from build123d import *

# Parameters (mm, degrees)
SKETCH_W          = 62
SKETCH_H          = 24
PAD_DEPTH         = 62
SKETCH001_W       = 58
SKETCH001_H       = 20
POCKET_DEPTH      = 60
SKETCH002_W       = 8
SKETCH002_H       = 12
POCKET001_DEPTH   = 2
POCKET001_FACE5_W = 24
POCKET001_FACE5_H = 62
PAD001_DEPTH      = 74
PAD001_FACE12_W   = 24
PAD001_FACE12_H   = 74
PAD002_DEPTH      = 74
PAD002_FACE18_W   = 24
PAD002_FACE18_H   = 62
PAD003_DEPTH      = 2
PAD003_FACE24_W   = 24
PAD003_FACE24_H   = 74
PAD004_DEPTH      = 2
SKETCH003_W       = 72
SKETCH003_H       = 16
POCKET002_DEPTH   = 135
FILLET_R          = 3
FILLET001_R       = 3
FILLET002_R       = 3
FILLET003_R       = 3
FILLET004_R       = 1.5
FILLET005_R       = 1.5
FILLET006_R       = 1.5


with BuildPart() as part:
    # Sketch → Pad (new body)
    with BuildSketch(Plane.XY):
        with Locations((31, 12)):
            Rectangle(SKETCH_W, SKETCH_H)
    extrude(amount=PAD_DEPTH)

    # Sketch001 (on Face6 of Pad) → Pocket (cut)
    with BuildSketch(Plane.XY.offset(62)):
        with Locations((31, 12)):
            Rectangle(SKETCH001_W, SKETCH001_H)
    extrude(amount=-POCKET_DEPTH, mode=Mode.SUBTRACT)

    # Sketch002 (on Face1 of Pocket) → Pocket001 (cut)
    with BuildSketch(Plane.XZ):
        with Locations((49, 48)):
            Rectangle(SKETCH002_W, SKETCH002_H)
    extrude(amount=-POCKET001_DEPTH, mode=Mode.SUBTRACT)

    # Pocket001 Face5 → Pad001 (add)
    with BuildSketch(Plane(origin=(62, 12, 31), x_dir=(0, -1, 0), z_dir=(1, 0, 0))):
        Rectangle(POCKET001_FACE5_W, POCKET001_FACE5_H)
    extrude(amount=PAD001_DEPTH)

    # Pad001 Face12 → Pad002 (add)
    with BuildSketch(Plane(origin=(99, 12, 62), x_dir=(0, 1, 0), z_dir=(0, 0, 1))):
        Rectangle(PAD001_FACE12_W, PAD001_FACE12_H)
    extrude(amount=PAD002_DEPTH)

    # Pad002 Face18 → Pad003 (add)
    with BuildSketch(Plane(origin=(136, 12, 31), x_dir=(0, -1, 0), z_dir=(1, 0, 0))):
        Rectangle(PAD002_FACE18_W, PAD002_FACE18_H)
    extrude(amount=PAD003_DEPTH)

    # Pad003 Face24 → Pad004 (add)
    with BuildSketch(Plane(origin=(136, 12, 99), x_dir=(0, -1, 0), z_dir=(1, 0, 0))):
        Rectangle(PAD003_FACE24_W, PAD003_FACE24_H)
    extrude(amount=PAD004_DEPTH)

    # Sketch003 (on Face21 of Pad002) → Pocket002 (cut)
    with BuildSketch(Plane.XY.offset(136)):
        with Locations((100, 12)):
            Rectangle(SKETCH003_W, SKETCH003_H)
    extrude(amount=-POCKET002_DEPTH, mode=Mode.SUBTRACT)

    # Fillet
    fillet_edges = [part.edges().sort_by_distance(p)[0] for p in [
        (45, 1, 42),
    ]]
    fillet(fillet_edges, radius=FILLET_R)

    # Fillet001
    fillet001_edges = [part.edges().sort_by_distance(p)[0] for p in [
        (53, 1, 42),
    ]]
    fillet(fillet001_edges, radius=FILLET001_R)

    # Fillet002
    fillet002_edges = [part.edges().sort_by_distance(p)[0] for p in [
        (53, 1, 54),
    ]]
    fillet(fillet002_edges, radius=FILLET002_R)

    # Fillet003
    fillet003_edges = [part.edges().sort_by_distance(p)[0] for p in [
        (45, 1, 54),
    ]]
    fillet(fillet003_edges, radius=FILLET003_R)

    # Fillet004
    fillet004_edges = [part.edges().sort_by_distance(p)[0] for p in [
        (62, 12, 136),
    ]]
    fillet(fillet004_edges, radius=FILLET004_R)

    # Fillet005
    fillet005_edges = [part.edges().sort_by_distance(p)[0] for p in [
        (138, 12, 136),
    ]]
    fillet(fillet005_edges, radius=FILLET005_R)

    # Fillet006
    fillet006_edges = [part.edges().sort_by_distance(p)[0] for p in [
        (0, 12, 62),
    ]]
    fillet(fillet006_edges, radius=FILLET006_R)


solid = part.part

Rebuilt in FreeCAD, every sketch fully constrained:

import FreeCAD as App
import Part
import Sketcher
from FreeCAD import Vector
Q = App.Units.Quantity


def edges_at(feature, points):
    """Names of the edges that pass closest to the given points."""
    edges = feature.Shape.Edges
    near = lambda p: min(range(len(edges)), key=lambda i: edges[i].distToShape(Part.Vertex(*p))[0])
    return sorted({f"Edge{near(p) + 1}" for p in points})


def add_polygon(sketch, points):
    """Adds a closed chain of lines whose ends are joined by coincident constraints."""
    first, n = sketch.GeometryCount, len(points)
    for a, b in zip(points, points[1:] + points[:1]):
        sketch.addGeometry(Part.LineSegment(App.Vector(*a, 0), App.Vector(*b, 0)), False)
    for i in range(n):
        sketch.addConstraint(Sketcher.Constraint("Coincident", first + i, 2, first + (i + 1) % n, 1))

doc = App.newDocument("Part")
body = doc.addObject("PartDesign::Body", "Body")

# Sketch on XY plane
sketch1 = body.newObject("Sketcher::SketchObject", "Sketch")
sketch1.AttachmentSupport = (doc.getObject("XY_Plane"), [""])
sketch1.MapMode = "FlatFace"
add_polygon(sketch1, [(0, 24), (0, 0), (62, 0), (62, 24)])  # lines 0-3
sketch1.addConstraint([
    Sketcher.Constraint("Vertical", 0),
    Sketcher.Constraint("Horizontal", 1),
    Sketcher.Constraint("Vertical", 2),
    Sketcher.Constraint("Horizontal", 3),
    Sketcher.Constraint("Coincident", 0, 2, -1, 1),
    Sketcher.Constraint("DistanceX", 1, 1, 1, 2, Q("62 mm")),
    Sketcher.Constraint("DistanceY", 0, 2, 0, 1, Q("24 mm")),
])
pad1 = body.newObject("PartDesign::Pad", "Pad")
pad1.Profile = sketch1
pad1.Length = 62

# Sketch on XY plane
sketch2 = body.newObject("Sketcher::SketchObject", "Sketch001")
sketch2.AttachmentSupport = (doc.getObject("XY_Plane"), [""])
sketch2.MapMode = "FlatFace"
sketch2.AttachmentOffset = App.Placement(Vector(0, 0, 62), App.Rotation())
add_polygon(sketch2, [(2, 22), (2, 2), (60, 2), (60, 22)])  # lines 0-3
sketch2.addConstraint([
    Sketcher.Constraint("Vertical", 0),
    Sketcher.Constraint("Horizontal", 1),
    Sketcher.Constraint("Vertical", 2),
    Sketcher.Constraint("Horizontal", 3),
    Sketcher.Constraint("DistanceX", 1, 1, 1, 2, Q("58 mm")),
    Sketcher.Constraint("DistanceY", 0, 2, 0, 1, Q("20 mm")),
    Sketcher.Constraint("DistanceX", -1, 1, 0, 2, Q("2 mm")),
    Sketcher.Constraint("DistanceY", -1, 1, 0, 2, Q("2 mm")),
])
pocket1 = body.newObject("PartDesign::Pocket", "Pocket")
pocket1.Profile = sketch2
pocket1.Length = 60

# Sketch on XZ plane
sketch3 = body.newObject("Sketcher::SketchObject", "Sketch002")
sketch3.AttachmentSupport = (doc.getObject("XZ_Plane"), [""])
sketch3.MapMode = "FlatFace"
add_polygon(sketch3, [(45, 54), (45, 42), (53, 42), (53, 54)])  # lines 0-3
sketch3.addConstraint([
    Sketcher.Constraint("Vertical", 0),
    Sketcher.Constraint("Horizontal", 1),
    Sketcher.Constraint("Vertical", 2),
    Sketcher.Constraint("Horizontal", 3),
    Sketcher.Constraint("DistanceX", 1, 1, 1, 2, Q("8 mm")),
    Sketcher.Constraint("DistanceY", 0, 2, 0, 1, Q("12 mm")),
    Sketcher.Constraint("DistanceX", -1, 1, 0, 2, Q("45 mm")),
    Sketcher.Constraint("DistanceY", -1, 1, 0, 2, Q("42 mm")),
])
pocket2 = body.newObject("PartDesign::Pocket", "Pocket001")
pocket2.Profile = sketch3
pocket2.Length = 2

# Sketch on YZ plane
sketch4 = body.newObject("Sketcher::SketchObject", "Sketch003")
sketch4.AttachmentSupport = (doc.getObject("YZ_Plane"), [""])
sketch4.MapMode = "FlatFace"
sketch4.AttachmentOffset = App.Placement(Vector(0, 0, 62), App.Rotation())
add_polygon(sketch4, [(24, 0), (24, 62), (0, 62), (0, 0)])  # lines 0-3
sketch4.addConstraint([
    Sketcher.Constraint("Vertical", 0),
    Sketcher.Constraint("Horizontal", 1),
    Sketcher.Constraint("Vertical", 2),
    Sketcher.Constraint("Horizontal", 3),
    Sketcher.Constraint("Coincident", 2, 2, -1, 1),
    Sketcher.Constraint("DistanceX", 1, 2, 1, 1, Q("24 mm")),
    Sketcher.Constraint("DistanceY", 0, 1, 0, 2, Q("62 mm")),
])
pad2 = body.newObject("PartDesign::Pad", "Pad001")
pad2.Profile = sketch4
pad2.Length = 74

# Sketch on XY plane
sketch5 = body.newObject("Sketcher::SketchObject", "Sketch004")
sketch5.AttachmentSupport = (doc.getObject("XY_Plane"), [""])
sketch5.MapMode = "FlatFace"
sketch5.AttachmentOffset = App.Placement(Vector(0, 0, 62), App.Rotation())
add_polygon(sketch5, [(62, 0), (136, 0), (136, 24), (62, 24)])  # lines 0-3
sketch5.addConstraint([
    Sketcher.Constraint("Horizontal", 0),
    Sketcher.Constraint("Vertical", 1),
    Sketcher.Constraint("Horizontal", 2),
    Sketcher.Constraint("Vertical", 3),
    Sketcher.Constraint("PointOnObject", 0, 2, -1),
    Sketcher.Constraint("DistanceX", 0, 1, 0, 2, Q("74 mm")),
    Sketcher.Constraint("DistanceY", 1, 1, 1, 2, Q("24 mm")),
    Sketcher.Constraint("DistanceX", -1, 1, 0, 2, Q("136 mm")),
])
pad3 = body.newObject("PartDesign::Pad", "Pad002")
pad3.Profile = sketch5
pad3.Length = 74

# Sketch on YZ plane
sketch6 = body.newObject("Sketcher::SketchObject", "Sketch005")
sketch6.AttachmentSupport = (doc.getObject("YZ_Plane"), [""])
sketch6.MapMode = "FlatFace"
sketch6.AttachmentOffset = App.Placement(Vector(0, 0, 136), App.Rotation())
add_polygon(sketch6, [(24, 0), (24, 62), (0, 62), (0, 0)])  # lines 0-3
sketch6.addConstraint([
    Sketcher.Constraint("Vertical", 0),
    Sketcher.Constraint("Horizontal", 1),
    Sketcher.Constraint("Vertical", 2),
    Sketcher.Constraint("Horizontal", 3),
    Sketcher.Constraint("Coincident", 2, 2, -1, 1),
    Sketcher.Constraint("DistanceX", 1, 2, 1, 1, Q("24 mm")),
    Sketcher.Constraint("DistanceY", 0, 1, 0, 2, Q("62 mm")),
])
pad4 = body.newObject("PartDesign::Pad", "Pad003")
pad4.Profile = sketch6
pad4.Length = 2

# Sketch on YZ plane
sketch7 = body.newObject("Sketcher::SketchObject", "Sketch006")
sketch7.AttachmentSupport = (doc.getObject("YZ_Plane"), [""])
sketch7.MapMode = "FlatFace"
sketch7.AttachmentOffset = App.Placement(Vector(0, 0, 136), App.Rotation())
add_polygon(sketch7, [(24, 62), (24, 136), (0, 136), (0, 62)])  # lines 0-3
sketch7.addConstraint([
    Sketcher.Constraint("Vertical", 0),
    Sketcher.Constraint("Horizontal", 1),
    Sketcher.Constraint("Vertical", 2),
    Sketcher.Constraint("Horizontal", 3),
    Sketcher.Constraint("PointOnObject", 1, 2, -2),
    Sketcher.Constraint("DistanceX", 1, 2, 1, 1, Q("24 mm")),
    Sketcher.Constraint("DistanceY", 0, 1, 0, 2, Q("74 mm")),
    Sketcher.Constraint("DistanceY", -1, 1, 0, 2, Q("136 mm")),
])
pad5 = body.newObject("PartDesign::Pad", "Pad004")
pad5.Profile = sketch7
pad5.Length = 2

# Sketch on XY plane
sketch8 = body.newObject("Sketcher::SketchObject", "Sketch007")
sketch8.AttachmentSupport = (doc.getObject("XY_Plane"), [""])
sketch8.MapMode = "FlatFace"
sketch8.AttachmentOffset = App.Placement(Vector(0, 0, 136), App.Rotation())
add_polygon(sketch8, [(64, 20), (64, 4), (136, 4), (136, 20)])  # lines 0-3
sketch8.addConstraint([
    Sketcher.Constraint("Vertical", 0),
    Sketcher.Constraint("Horizontal", 1),
    Sketcher.Constraint("Vertical", 2),
    Sketcher.Constraint("Horizontal", 3),
    Sketcher.Constraint("DistanceX", 1, 1, 1, 2, Q("72 mm")),
    Sketcher.Constraint("DistanceY", 0, 2, 0, 1, Q("16 mm")),
    Sketcher.Constraint("DistanceX", -1, 1, 0, 2, Q("64 mm")),
    Sketcher.Constraint("DistanceY", -1, 1, 0, 2, Q("4 mm")),
])
pocket3 = body.newObject("PartDesign::Pocket", "Pocket002")
pocket3.Profile = sketch8
pocket3.Length = 135
doc.recompute()

fillet = body.newObject("PartDesign::Fillet", "Fillet")
fillet.Base = (pocket3, edges_at(pocket3, [(45, 1, 42)]))
fillet.Radius = 3
doc.recompute()

fillet2 = body.newObject("PartDesign::Fillet", "Fillet001")
fillet2.Base = (fillet, edges_at(fillet, [(53, 1, 42)]))
fillet2.Radius = 3
doc.recompute()

fillet3 = body.newObject("PartDesign::Fillet", "Fillet002")
fillet3.Base = (fillet2, edges_at(fillet2, [(53, 1, 54)]))
fillet3.Radius = 3
doc.recompute()

fillet4 = body.newObject("PartDesign::Fillet", "Fillet003")
fillet4.Base = (fillet3, edges_at(fillet3, [(45, 1, 54)]))
fillet4.Radius = 3
doc.recompute()

fillet5 = body.newObject("PartDesign::Fillet", "Fillet004")
fillet5.Base = (fillet4, edges_at(fillet4, [(62, 12, 136)]))
fillet5.Radius = 1.5
doc.recompute()

fillet6 = body.newObject("PartDesign::Fillet", "Fillet005")
fillet6.Base = (fillet5, edges_at(fillet5, [(138, 12, 136)]))
fillet6.Radius = 1.5
doc.recompute()

fillet7 = body.newObject("PartDesign::Fillet", "Fillet006")
fillet7.Base = (fillet6, edges_at(fillet6, [(0, 12, 62)]))
fillet7.Radius = 1.5

doc.recompute()
